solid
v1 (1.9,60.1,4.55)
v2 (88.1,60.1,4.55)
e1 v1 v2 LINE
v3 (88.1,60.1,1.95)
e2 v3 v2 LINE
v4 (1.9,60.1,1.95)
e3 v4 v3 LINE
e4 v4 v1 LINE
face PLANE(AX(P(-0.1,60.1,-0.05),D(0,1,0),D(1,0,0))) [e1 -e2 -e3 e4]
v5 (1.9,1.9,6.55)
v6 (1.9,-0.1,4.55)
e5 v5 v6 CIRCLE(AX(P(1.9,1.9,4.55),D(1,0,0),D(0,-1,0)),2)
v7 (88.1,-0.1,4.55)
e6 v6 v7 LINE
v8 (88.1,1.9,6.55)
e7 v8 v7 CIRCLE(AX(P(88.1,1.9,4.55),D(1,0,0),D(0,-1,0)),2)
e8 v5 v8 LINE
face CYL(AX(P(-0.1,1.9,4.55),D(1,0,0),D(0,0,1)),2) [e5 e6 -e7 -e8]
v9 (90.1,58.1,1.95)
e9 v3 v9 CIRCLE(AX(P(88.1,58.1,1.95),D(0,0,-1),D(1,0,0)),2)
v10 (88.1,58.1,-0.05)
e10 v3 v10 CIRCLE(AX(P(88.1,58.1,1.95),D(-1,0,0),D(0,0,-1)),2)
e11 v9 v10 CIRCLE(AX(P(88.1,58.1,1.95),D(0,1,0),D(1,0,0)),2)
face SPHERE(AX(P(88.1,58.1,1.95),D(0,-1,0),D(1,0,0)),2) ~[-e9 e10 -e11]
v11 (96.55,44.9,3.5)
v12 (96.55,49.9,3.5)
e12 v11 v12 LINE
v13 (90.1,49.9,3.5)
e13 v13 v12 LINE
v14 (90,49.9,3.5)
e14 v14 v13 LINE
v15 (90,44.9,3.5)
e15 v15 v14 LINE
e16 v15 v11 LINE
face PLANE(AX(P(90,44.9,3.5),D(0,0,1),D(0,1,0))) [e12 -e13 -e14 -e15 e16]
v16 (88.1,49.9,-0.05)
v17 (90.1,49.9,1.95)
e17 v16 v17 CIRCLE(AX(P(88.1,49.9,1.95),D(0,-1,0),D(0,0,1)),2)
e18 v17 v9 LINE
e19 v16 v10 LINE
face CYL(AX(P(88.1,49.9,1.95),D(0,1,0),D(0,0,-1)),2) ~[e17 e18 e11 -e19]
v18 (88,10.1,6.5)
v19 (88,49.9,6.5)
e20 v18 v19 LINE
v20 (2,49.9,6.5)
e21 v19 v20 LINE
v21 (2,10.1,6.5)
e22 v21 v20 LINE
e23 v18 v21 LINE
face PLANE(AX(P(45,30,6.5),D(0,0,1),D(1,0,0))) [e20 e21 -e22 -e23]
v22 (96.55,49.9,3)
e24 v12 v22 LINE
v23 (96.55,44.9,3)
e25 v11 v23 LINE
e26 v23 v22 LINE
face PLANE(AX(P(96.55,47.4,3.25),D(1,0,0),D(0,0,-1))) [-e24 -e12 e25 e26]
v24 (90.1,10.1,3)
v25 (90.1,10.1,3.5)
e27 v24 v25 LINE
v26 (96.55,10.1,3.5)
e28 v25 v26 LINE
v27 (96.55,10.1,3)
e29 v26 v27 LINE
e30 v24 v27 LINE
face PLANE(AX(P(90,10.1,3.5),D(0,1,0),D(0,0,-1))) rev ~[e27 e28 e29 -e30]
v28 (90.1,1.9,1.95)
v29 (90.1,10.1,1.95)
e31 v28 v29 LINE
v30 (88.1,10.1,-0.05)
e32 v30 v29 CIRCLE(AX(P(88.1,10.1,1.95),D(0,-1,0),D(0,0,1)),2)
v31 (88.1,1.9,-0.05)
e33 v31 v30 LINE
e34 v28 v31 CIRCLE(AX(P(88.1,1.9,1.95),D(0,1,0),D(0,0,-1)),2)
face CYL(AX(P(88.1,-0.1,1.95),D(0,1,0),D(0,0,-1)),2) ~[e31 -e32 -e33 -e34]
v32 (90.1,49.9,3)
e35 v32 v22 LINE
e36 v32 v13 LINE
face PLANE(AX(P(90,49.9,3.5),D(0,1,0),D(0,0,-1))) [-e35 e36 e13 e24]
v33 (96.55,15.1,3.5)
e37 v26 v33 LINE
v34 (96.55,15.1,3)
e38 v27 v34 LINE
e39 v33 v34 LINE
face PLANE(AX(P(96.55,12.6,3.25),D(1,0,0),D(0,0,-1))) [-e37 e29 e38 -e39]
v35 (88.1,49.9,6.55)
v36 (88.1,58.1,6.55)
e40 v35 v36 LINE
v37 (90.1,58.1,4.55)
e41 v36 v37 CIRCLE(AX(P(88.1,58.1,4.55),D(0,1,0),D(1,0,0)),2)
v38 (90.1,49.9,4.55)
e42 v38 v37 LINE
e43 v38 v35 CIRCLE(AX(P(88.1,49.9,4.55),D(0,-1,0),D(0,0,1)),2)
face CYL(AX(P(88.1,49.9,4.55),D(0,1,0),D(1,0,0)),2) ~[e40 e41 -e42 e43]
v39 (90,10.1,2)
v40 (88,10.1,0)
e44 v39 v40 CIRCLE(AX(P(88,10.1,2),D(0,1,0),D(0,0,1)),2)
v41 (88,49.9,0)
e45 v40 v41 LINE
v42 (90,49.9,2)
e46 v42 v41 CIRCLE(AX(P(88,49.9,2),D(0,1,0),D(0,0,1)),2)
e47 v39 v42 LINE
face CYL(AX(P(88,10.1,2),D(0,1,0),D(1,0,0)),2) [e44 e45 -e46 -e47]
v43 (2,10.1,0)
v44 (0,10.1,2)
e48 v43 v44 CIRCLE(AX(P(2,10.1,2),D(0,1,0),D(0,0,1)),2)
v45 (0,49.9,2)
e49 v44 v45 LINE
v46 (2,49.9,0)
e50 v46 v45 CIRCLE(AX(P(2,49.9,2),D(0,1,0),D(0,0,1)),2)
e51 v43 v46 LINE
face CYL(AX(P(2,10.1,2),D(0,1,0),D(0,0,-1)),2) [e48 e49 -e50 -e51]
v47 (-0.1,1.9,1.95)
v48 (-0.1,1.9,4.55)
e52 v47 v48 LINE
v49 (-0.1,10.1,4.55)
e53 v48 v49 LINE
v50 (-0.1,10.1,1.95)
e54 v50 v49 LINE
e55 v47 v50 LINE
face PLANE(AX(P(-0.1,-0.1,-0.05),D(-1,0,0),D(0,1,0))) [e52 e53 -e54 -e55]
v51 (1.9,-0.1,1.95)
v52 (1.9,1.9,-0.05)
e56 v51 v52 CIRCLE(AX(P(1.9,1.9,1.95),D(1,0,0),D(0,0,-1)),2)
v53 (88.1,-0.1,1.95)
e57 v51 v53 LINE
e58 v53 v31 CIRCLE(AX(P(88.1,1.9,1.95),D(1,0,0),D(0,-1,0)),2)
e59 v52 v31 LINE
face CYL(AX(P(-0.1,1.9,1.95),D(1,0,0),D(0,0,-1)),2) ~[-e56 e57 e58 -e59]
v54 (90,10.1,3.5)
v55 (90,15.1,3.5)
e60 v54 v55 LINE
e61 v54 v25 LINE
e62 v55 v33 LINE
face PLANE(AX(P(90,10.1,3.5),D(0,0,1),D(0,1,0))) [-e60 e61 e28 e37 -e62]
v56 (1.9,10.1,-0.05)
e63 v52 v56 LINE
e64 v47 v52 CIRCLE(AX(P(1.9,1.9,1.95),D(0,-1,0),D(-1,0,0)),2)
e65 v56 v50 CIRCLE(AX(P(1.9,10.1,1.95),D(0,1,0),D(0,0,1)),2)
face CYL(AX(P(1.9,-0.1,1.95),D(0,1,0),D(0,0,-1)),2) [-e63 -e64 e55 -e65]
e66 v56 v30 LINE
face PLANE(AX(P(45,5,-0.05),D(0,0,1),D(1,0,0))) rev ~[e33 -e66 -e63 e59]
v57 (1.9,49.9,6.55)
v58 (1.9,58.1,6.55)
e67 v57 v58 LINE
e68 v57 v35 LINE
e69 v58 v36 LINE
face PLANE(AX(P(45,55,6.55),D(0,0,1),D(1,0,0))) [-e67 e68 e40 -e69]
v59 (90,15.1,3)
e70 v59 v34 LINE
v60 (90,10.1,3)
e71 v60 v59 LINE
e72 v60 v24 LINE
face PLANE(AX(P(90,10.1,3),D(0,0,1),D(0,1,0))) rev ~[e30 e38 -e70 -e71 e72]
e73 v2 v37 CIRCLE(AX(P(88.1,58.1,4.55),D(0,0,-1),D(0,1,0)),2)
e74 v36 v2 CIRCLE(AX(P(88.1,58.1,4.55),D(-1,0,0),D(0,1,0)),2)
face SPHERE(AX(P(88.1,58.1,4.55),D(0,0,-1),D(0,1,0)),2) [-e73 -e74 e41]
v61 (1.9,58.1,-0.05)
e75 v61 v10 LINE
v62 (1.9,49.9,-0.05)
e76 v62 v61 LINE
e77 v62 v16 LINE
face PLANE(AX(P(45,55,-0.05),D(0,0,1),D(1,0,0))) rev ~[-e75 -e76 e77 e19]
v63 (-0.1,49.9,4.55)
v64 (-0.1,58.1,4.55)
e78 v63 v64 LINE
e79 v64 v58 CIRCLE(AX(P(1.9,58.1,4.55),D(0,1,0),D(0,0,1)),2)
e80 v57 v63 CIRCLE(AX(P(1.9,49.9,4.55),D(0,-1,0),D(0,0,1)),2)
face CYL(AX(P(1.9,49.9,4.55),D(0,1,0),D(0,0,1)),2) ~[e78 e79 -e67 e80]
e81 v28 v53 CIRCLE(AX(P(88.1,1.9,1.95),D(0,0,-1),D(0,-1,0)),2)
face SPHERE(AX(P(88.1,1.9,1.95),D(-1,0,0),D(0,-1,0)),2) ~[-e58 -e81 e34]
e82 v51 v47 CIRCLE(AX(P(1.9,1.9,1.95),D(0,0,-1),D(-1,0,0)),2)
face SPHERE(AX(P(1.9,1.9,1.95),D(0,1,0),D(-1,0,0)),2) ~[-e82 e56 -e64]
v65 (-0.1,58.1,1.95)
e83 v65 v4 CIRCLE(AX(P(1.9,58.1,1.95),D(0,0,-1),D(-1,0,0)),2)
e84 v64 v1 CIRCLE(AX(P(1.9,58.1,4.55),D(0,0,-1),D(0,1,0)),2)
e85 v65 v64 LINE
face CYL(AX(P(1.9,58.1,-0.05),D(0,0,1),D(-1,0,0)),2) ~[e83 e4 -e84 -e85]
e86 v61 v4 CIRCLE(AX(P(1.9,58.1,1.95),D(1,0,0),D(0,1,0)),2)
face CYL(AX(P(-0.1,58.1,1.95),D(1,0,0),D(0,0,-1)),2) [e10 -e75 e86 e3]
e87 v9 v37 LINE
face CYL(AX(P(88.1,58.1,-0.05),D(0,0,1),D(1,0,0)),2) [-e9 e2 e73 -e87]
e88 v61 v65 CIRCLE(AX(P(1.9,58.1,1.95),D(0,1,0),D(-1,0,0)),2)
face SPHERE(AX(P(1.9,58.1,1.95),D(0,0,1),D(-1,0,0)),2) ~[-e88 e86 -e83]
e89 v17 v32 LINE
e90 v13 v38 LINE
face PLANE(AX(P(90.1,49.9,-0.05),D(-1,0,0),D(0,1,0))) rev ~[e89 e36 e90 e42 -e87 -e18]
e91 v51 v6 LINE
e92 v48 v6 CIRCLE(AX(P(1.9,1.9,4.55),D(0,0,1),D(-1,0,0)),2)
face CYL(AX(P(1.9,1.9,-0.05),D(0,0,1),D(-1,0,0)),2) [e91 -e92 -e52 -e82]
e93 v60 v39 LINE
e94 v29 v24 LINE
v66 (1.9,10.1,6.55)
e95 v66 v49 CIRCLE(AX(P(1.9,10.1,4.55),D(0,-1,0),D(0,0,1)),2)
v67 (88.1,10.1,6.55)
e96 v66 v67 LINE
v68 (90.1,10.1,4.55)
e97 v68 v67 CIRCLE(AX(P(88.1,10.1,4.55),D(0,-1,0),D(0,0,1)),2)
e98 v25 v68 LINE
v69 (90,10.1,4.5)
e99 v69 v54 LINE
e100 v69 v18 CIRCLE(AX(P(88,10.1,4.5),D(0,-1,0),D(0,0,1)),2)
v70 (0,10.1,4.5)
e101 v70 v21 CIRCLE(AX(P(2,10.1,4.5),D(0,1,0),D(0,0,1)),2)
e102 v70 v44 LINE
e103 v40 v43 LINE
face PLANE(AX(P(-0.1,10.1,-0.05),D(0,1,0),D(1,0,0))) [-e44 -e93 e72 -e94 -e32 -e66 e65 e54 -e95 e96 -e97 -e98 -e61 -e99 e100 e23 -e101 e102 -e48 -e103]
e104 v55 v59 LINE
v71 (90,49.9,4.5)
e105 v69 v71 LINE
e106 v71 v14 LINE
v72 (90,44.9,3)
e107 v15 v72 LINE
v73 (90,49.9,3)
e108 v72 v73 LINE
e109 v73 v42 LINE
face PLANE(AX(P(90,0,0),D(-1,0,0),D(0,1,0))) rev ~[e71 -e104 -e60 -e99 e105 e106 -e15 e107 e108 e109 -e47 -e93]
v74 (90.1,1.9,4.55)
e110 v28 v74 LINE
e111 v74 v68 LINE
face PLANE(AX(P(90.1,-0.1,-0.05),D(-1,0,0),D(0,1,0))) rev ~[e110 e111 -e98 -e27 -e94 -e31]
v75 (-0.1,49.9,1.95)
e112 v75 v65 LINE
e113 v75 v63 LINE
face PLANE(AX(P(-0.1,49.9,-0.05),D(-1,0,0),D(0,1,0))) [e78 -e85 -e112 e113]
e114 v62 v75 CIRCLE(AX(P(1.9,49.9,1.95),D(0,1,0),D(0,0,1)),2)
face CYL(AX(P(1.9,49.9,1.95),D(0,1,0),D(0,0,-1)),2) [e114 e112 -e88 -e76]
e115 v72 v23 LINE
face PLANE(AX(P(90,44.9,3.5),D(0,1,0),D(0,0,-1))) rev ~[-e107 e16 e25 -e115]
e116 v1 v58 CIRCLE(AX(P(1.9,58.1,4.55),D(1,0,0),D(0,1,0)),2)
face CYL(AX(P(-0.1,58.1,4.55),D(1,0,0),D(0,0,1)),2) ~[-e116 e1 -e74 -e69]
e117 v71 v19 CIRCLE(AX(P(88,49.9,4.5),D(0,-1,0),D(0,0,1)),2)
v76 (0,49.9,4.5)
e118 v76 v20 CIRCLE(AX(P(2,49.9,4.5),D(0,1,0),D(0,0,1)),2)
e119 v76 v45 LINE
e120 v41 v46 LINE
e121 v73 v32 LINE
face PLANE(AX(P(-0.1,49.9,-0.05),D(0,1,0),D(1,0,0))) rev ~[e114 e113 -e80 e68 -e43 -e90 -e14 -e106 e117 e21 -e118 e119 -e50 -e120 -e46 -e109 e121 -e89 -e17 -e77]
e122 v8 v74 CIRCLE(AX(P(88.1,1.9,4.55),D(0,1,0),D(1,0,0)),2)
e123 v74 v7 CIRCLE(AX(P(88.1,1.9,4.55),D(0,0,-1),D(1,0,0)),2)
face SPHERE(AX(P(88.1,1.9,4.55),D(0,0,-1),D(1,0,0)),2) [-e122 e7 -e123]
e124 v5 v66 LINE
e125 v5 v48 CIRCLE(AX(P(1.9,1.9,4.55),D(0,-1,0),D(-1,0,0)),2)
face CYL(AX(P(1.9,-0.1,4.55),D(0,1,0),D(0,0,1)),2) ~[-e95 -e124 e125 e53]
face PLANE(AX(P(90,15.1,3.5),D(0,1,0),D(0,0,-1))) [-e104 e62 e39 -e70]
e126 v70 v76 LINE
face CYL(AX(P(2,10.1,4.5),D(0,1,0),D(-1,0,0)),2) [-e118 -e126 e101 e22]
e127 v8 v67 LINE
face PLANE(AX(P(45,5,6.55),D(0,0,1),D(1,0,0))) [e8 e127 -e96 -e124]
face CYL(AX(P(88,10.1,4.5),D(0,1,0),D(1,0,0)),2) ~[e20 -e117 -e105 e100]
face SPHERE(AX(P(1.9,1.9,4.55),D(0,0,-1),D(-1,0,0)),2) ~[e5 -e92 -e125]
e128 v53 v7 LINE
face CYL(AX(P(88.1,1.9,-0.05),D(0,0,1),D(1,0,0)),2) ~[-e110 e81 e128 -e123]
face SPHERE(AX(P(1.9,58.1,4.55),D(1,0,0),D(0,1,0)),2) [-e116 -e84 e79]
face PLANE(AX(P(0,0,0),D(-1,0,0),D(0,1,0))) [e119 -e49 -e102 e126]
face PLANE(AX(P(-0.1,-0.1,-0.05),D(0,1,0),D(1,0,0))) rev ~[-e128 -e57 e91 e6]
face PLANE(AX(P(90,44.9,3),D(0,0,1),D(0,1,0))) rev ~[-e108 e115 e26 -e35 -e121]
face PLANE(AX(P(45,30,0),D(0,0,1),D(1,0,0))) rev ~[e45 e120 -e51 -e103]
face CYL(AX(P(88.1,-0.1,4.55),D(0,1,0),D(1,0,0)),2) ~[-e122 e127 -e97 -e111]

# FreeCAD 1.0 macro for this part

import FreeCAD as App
import Part
import Sketcher

V = App.Vector


def edges_at(feature, points):
    """Names of the edges that pass closest to the given points."""
    edges = feature.Shape.Edges
    near = lambda p: min(range(len(edges)), key=lambda i: edges[i].distToShape(Part.Vertex(*p))[0])
    return sorted({f"Edge{near(p) + 1}" for p in points})


def add_polygon(sketch, points):
    """Adds a closed chain of lines whose ends are joined by coincident constraints."""
    first, n = sketch.GeometryCount, len(points)
    for a, b in zip(points, points[1:] + points[:1]):
        sketch.addGeometry(Part.LineSegment(App.Vector(*a, 0), App.Vector(*b, 0)), False)
    for i in range(n):
        sketch.addConstraint(Sketcher.Constraint("Coincident", first + i, 2, first + (i + 1) % n, 1))

doc = App.newDocument("Part")
body = doc.addObject("PartDesign::Body", "Body")

sketch1 = body.newObject("Sketcher::SketchObject", "Sketch")
sketch1.AttachmentSupport = (doc.getObject("XY_Plane"), [""])
sketch1.MapMode = "FlatFace"
add_polygon(sketch1, [(0, 60), (0, 0), (90, 0), (90, 60)])
sketch1.addConstraint(Sketcher.Constraint("Vertical", 0))
sketch1.addConstraint(Sketcher.Constraint("Horizontal", 1))
sketch1.addConstraint(Sketcher.Constraint("Vertical", 2))
sketch1.addConstraint(Sketcher.Constraint("Horizontal", 3))
sketch1.addConstraint(Sketcher.Constraint("Coincident", 0, 2, -1, 1))
sketch1.addConstraint(Sketcher.Constraint("DistanceX", 1, 1, 1, 2, 90.0))
sketch1.addConstraint(Sketcher.Constraint("DistanceY", 0, 2, 0, 1, 60.0))
pad1 = body.newObject("PartDesign::Pad", "Pad")
pad1.Profile = sketch1
pad1.Length = 6.5

sketch2 = body.newObject("Sketcher::SketchObject", "Sketch001")
sketch2.AttachmentSupport = (doc.getObject("XY_Plane"), [""])
sketch2.MapMode = "FlatFace"
sketch2.AttachmentOffset = App.Placement(V(0, 0, 6.5), App.Rotation())
add_polygon(sketch2, [(-0.1, 60.1), (-0.1, 49.9), (90.1, 49.9), (90.1, 60.1)])
add_polygon(sketch2, [(-0.1, 10.1), (-0.1, -0.1), (90.1, -0.1), (90.1, 10.1)])
sketch2.addConstraint(Sketcher.Constraint("Vertical", 0))
sketch2.addConstraint(Sketcher.Constraint("Horizontal", 1))
sketch2.addConstraint(Sketcher.Constraint("Vertical", 2))
sketch2.addConstraint(Sketcher.Constraint("Horizontal", 3))
sketch2.addConstraint(Sketcher.Constraint("Vertical", 4))
sketch2.addConstraint(Sketcher.Constraint("Horizontal", 5))
sketch2.addConstraint(Sketcher.Constraint("Vertical", 6))
sketch2.addConstraint(Sketcher.Constraint("Horizontal", 7))
sketch2.addConstraint(Sketcher.Constraint("Vertical", 3, 2, 4, 2))
sketch2.addConstraint(Sketcher.Constraint("Vertical", 2, 2, 5, 2))
sketch2.addConstraint(Sketcher.Constraint("Equal", 2, 4))
sketch2.addConstraint(Sketcher.Constraint("DistanceX", 1, 1, 1, 2, 90.2))
sketch2.addConstraint(Sketcher.Constraint("DistanceY", 0, 2, 0, 1, 10.2))
sketch2.addConstraint(Sketcher.Constraint("DistanceY", 4, 2, 0, 2, 50.0))
sketch2.addConstraint(Sketcher.Constraint("DistanceX", 0, 2, -1, 1, 0.1))
sketch2.addConstraint(Sketcher.Constraint("DistanceY", -1, 1, 0, 2, 49.9))
pad2 = body.newObject("PartDesign::Pad", "Pad001")
pad2.Profile = sketch2
pad2.Type = "TwoLengths"
pad2.Length = 0.05
pad2.Length2 = 6.55

sketch3 = body.newObject("Sketcher::SketchObject", "Sketch002")
sketch3.AttachmentSupport = (doc.getObject("YZ_Plane"), [""])
sketch3.MapMode = "FlatFace"
sketch3.AttachmentOffset = App.Placement(V(0, 0, 90), App.Rotation())
add_polygon(sketch3, [(49.9, 3.5), (44.9, 3.5), (44.9, 3), (49.9, 3)])
add_polygon(sketch3, [(15.1, 3.5), (10.1, 3.5), (10.1, 3), (15.1, 3)])
sketch3.addConstraint(Sketcher.Constraint("Horizontal", 0))
sketch3.addConstraint(Sketcher.Constraint("Vertical", 1))
sketch3.addConstraint(Sketcher.Constraint("Horizontal", 2))
sketch3.addConstraint(Sketcher.Constraint("Vertical", 3))
sketch3.addConstraint(Sketcher.Constraint("Horizontal", 4))
sketch3.addConstraint(Sketcher.Constraint("Vertical", 5))
sketch3.addConstraint(Sketcher.Constraint("Horizontal", 6))
sketch3.addConstraint(Sketcher.Constraint("Vertical", 7))
sketch3.addConstraint(Sketcher.Constraint("Horizontal", 3, 2, 4, 2))
sketch3.addConstraint(Sketcher.Constraint("Horizontal", 2, 2, 5, 2))
sketch3.addConstraint(Sketcher.Constraint("Equal", 2, 4))
sketch3.addConstraint(Sketcher.Constraint("DistanceX", 0, 2, 0, 1, 5.0))
sketch3.addConstraint(Sketcher.Constraint("DistanceY", 1, 2, 1, 1, 0.5))
sketch3.addConstraint(Sketcher.Constraint("DistanceY", -1, 1, 1, 2, 3.0))
sketch3.addConstraint(Sketcher.Constraint("DistanceX", -1, 1, 0, 2, 44.9))
sketch3.addConstraint(Sketcher.Constraint("DistanceX", -1, 1, 4, 2, 10.1))
pad3 = body.newObject("PartDesign::Pad", "Pad002")
pad3.Profile = sketch3
pad3.Length = 6.55
doc.recompute()

fillet = body.newObject("PartDesign::Fillet", "Fillet")
fillet.Base = (pad3, edges_at(pad3, [
    (0, 30, 0),
    (90, 30, 0),
    (0, 30, 6.5),
    (90, 30, 6.5),
    (90.1, 55, -0.05),
    (90.1, 60.1, 3.25),
    (45, 60.1, 6.55),
    (-0.1, 60.1, 3.25),
    (-0.1, 55, 6.55),
    (90.1, 55, 6.55),
    (-0.1, 55, -0.05),
    (45, 60.1, -0.05),
    (-0.1, 5, -0.05),
    (-0.1, -0.1, 3.25),
    (45, -0.1, -0.05),
    (90.1, -0.1, 3.25),
    (90.1, 5, 6.55),
    (-0.1, 5, 6.55),
    (45, -0.1, 6.55),
    (90.1, 5, -0.05),
]))
fillet.Radius = 2

doc.recompute()
